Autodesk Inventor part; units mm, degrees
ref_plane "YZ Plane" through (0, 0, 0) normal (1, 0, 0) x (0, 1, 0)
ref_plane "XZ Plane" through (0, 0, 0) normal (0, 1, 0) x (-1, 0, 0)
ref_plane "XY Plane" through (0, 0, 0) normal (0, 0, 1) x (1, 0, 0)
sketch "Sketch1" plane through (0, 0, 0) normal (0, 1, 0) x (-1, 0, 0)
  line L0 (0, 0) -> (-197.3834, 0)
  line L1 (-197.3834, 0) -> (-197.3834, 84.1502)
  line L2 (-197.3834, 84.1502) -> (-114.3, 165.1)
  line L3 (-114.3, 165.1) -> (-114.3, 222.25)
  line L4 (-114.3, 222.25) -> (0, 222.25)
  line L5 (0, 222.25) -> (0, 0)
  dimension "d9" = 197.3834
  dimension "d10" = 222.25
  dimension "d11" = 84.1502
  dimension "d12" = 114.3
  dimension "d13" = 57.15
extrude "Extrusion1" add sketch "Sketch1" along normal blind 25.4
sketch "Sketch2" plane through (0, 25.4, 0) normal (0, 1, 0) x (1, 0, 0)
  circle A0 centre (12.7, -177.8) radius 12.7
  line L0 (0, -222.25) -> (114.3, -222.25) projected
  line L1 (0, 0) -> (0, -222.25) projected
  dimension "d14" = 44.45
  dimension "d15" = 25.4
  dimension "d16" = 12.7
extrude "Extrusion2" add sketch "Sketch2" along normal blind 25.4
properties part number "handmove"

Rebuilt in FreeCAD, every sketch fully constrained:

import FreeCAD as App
import Part
import Sketcher

V = App.Vector
Q = App.Units.Quantity

doc = App.newDocument("Part")
params = doc.addObject("Spreadsheet::Sheet", "Params")
for row, (alias, value) in enumerate([
    ("sketch1_width", "4.5 in"),
    ("sketch1_height", "8.75 in"),
    ("sketch1_height2", "2.25 in"),
    ("sketch1_width2", "7.771 in"),
    ("sketch1_height3", "3.313 in"),
    ("pad1_length", "1 in"),
    ("sketch2_diameter", "1 in"),
    ("pad2_length", "1 in"),
], start=1):
    params.set(f"A{row}", alias)
    params.set(f"B{row}", "=" + value)
    params.setAlias(f"B{row}", alias)

body = doc.addObject("PartDesign::Body", "Body")

sketch1 = body.newObject("Sketcher::SketchObject", "Sketch")
sketch1.AttachmentSupport = (doc.getObject("XZ_Plane"), [""])
sketch1.MapMode = "FlatFace"
sketch1.addGeometry(Part.LineSegment(V(197, 0, 0), V(0, 0, 0)), False)
sketch1.addGeometry(Part.LineSegment(V(0, 0, 0), V(0, 222, 0)), False)
sketch1.addGeometry(Part.LineSegment(V(0, 222, 0), V(114, 222, 0)), False)
sketch1.addGeometry(Part.LineSegment(V(114, 222, 0), V(114, 165, 0)), False)
sketch1.addGeometry(Part.LineSegment(V(114, 165, 0), V(197, 84, 0)), False)
sketch1.addGeometry(Part.LineSegment(V(197, 84, 0), V(197, 0, 0)), False)
sketch1.addConstraint(Sketcher.Constraint("Coincident", 0, 2, 1, 1))
sketch1.addConstraint(Sketcher.Constraint("Coincident", 1, 2, 2, 1))
sketch1.addConstraint(Sketcher.Constraint("Coincident", 2, 2, 3, 1))
sketch1.addConstraint(Sketcher.Constraint("Coincident", 3, 2, 4, 1))
sketch1.addConstraint(Sketcher.Constraint("Coincident", 4, 2, 5, 1))
sketch1.addConstraint(Sketcher.Constraint("Coincident", 5, 2, 0, 1))
sketch1.addConstraint(Sketcher.Constraint("Horizontal", 0))
sketch1.addConstraint(Sketcher.Constraint("Vertical", 1))
sketch1.addConstraint(Sketcher.Constraint("Horizontal", 2))
sketch1.addConstraint(Sketcher.Constraint("Vertical", 3))
sketch1.addConstraint(Sketcher.Constraint("Vertical", 5))
sketch1.addConstraint(Sketcher.Constraint("Coincident", 0, 2, -1, 1))
sketch1.addConstraint(Sketcher.Constraint("DistanceX", 2, 1, 2, 2, Q("4.5 in")))
sketch1.addConstraint(Sketcher.Constraint("DistanceY", 1, 1, 1, 2, Q("8.75 in")))
sketch1.addConstraint(Sketcher.Constraint("DistanceY", 3, 2, 3, 1, Q("2.25 in")))
sketch1.addConstraint(Sketcher.Constraint("DistanceX", 0, 2, 0, 1, Q("7.771 in")))
sketch1.addConstraint(Sketcher.Constraint("DistanceY", 5, 2, 5, 1, Q("3.313 in")))
sketch1.setExpression("Constraints[12]", "Params.sketch1_width")
sketch1.setExpression("Constraints[13]", "Params.sketch1_height")
sketch1.setExpression("Constraints[14]", "Params.sketch1_height2")
sketch1.setExpression("Constraints[15]", "Params.sketch1_width2")
sketch1.setExpression("Constraints[16]", "Params.sketch1_height3")
pad1 = body.newObject("PartDesign::Pad", "Pad")
pad1.Profile = sketch1
pad1.setExpression("Length", "Params.pad1_length")
pad1.Reversed = True

sketch2 = body.newObject("Sketcher::SketchObject", "Sketch001")
sketch2.AttachmentSupport = (doc.getObject("XZ_Plane"), [""])
sketch2.MapMode = "FlatFace"
sketch2.AttachmentOffset = App.Placement(V(0, 0, -1 * 25.4), App.Rotation())
sketch2.addGeometry(Part.Circle(V(13, 178, 0), V(0, 0, 1), 13), False)
sketch2.addConstraint(Sketcher.Constraint("Diameter", 0, Q("1 in")))
sketch2.addConstraint(Sketcher.Constraint("DistanceX", -1, 1, 0, 3, Q("0.5 in")))
sketch2.addConstraint(Sketcher.Constraint("DistanceY", -1, 1, 0, 3, Q("7 in")))
sketch2.setExpression("Constraints[0]", "Params.sketch2_diameter")
pad2 = body.newObject("PartDesign::Pad", "Pad001")
pad2.Profile = sketch2
pad2.setExpression("Length", "Params.pad2_length")
pad2.Reversed = True

doc.recompute()
